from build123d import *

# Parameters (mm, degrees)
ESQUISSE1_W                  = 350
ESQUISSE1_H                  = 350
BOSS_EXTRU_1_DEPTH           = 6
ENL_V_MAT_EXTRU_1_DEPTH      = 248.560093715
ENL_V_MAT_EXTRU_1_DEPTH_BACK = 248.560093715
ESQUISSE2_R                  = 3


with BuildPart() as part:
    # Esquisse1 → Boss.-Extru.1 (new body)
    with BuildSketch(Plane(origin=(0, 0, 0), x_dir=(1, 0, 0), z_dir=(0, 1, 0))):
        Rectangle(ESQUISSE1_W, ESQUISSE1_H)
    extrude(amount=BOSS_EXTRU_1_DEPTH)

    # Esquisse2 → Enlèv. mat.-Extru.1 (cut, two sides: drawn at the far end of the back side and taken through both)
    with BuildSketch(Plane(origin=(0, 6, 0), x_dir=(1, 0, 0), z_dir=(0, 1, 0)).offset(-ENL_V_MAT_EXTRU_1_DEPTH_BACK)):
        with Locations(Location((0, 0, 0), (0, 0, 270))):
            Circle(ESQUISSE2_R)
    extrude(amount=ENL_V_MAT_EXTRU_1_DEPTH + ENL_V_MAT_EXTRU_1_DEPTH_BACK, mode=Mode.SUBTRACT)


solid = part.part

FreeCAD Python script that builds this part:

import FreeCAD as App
import Part
import Sketcher
from FreeCAD import Vector
Q = App.Units.Quantity

doc = App.newDocument("Part")
params = doc.addObject("Spreadsheet::Sheet", "Params")
for row, (alias, value) in enumerate([
    ("sketch1_width", "350 mm"),
    ("pad1_length", "6 mm"),
    ("sketch2_diameter", "6 mm"),
], start=1):
    params.set(f"A{row}", alias)
    params.set(f"B{row}", "=" + value)
    params.setAlias(f"B{row}", alias)

body = doc.addObject("PartDesign::Body", "Body")

# Sketch on XZ plane
sketch1 = body.newObject("Sketcher::SketchObject", "Sketch")
sketch1.AttachmentSupport = (doc.getObject("XZ_Plane"), [""])
sketch1.MapMode = "FlatFace"
sketch1.addGeometry([
    Part.LineSegment(Vector(-175, -175, 0), Vector(-175, 175, 0)),
    Part.LineSegment(Vector(-175, 175, 0), Vector(175, 175, 0)),
    Part.LineSegment(Vector(175, 175, 0), Vector(175, -175, 0)),
    Part.LineSegment(Vector(175, -175, 0), Vector(-175, -175, 0)),
], False)
sketch1.addConstraint([
    Sketcher.Constraint("Coincident", 0, 2, 1, 1),
    Sketcher.Constraint("Coincident", 1, 2, 2, 1),
    Sketcher.Constraint("Coincident", 2, 2, 3, 1),
    Sketcher.Constraint("Coincident", 3, 2, 0, 1),
    Sketcher.Constraint("Vertical", 0),
    Sketcher.Constraint("Horizontal", 1),
    Sketcher.Constraint("Vertical", 2),
    Sketcher.Constraint("Horizontal", 3),
    Sketcher.Constraint("Symmetric", 0, 2, 2, 2, -1, 1),
    Sketcher.Constraint("Equal", 3, 0),
    Sketcher.Constraint("DistanceX", 1, 1, 1, 2, Q("350 mm")),
])
sketch1.setExpression("Constraints[10]", "Params.sketch1_width")
pad1 = body.newObject("PartDesign::Pad", "Pad")
pad1.Profile = sketch1
pad1.setExpression("Length", "Params.pad1_length")
pad1.Reversed = True

# Sketch on XZ plane
sketch2 = body.newObject("Sketcher::SketchObject", "Sketch001")
sketch2.AttachmentSupport = (doc.getObject("XZ_Plane"), [""])
sketch2.MapMode = "FlatFace"
sketch2.AttachmentOffset = App.Placement(Vector(0, 0, -6), App.Rotation())
sketch2.addGeometry(Part.Circle(Vector(0, 0, 0), Vector(0, 0, 1), 3), False)
sketch2.addConstraint([
    Sketcher.Constraint("Coincident", 0, 3, -1, 1),
    Sketcher.Constraint("Diameter", 0, Q("6 mm")),
])
sketch2.setExpression("Constraints[1]", "Params.sketch2_diameter")
pocket1 = body.newObject("PartDesign::Pocket", "Pocket")
pocket1.Profile = sketch2
pocket1.Type = "ThroughAll"
pocket1.Midplane = True

doc.recompute()
